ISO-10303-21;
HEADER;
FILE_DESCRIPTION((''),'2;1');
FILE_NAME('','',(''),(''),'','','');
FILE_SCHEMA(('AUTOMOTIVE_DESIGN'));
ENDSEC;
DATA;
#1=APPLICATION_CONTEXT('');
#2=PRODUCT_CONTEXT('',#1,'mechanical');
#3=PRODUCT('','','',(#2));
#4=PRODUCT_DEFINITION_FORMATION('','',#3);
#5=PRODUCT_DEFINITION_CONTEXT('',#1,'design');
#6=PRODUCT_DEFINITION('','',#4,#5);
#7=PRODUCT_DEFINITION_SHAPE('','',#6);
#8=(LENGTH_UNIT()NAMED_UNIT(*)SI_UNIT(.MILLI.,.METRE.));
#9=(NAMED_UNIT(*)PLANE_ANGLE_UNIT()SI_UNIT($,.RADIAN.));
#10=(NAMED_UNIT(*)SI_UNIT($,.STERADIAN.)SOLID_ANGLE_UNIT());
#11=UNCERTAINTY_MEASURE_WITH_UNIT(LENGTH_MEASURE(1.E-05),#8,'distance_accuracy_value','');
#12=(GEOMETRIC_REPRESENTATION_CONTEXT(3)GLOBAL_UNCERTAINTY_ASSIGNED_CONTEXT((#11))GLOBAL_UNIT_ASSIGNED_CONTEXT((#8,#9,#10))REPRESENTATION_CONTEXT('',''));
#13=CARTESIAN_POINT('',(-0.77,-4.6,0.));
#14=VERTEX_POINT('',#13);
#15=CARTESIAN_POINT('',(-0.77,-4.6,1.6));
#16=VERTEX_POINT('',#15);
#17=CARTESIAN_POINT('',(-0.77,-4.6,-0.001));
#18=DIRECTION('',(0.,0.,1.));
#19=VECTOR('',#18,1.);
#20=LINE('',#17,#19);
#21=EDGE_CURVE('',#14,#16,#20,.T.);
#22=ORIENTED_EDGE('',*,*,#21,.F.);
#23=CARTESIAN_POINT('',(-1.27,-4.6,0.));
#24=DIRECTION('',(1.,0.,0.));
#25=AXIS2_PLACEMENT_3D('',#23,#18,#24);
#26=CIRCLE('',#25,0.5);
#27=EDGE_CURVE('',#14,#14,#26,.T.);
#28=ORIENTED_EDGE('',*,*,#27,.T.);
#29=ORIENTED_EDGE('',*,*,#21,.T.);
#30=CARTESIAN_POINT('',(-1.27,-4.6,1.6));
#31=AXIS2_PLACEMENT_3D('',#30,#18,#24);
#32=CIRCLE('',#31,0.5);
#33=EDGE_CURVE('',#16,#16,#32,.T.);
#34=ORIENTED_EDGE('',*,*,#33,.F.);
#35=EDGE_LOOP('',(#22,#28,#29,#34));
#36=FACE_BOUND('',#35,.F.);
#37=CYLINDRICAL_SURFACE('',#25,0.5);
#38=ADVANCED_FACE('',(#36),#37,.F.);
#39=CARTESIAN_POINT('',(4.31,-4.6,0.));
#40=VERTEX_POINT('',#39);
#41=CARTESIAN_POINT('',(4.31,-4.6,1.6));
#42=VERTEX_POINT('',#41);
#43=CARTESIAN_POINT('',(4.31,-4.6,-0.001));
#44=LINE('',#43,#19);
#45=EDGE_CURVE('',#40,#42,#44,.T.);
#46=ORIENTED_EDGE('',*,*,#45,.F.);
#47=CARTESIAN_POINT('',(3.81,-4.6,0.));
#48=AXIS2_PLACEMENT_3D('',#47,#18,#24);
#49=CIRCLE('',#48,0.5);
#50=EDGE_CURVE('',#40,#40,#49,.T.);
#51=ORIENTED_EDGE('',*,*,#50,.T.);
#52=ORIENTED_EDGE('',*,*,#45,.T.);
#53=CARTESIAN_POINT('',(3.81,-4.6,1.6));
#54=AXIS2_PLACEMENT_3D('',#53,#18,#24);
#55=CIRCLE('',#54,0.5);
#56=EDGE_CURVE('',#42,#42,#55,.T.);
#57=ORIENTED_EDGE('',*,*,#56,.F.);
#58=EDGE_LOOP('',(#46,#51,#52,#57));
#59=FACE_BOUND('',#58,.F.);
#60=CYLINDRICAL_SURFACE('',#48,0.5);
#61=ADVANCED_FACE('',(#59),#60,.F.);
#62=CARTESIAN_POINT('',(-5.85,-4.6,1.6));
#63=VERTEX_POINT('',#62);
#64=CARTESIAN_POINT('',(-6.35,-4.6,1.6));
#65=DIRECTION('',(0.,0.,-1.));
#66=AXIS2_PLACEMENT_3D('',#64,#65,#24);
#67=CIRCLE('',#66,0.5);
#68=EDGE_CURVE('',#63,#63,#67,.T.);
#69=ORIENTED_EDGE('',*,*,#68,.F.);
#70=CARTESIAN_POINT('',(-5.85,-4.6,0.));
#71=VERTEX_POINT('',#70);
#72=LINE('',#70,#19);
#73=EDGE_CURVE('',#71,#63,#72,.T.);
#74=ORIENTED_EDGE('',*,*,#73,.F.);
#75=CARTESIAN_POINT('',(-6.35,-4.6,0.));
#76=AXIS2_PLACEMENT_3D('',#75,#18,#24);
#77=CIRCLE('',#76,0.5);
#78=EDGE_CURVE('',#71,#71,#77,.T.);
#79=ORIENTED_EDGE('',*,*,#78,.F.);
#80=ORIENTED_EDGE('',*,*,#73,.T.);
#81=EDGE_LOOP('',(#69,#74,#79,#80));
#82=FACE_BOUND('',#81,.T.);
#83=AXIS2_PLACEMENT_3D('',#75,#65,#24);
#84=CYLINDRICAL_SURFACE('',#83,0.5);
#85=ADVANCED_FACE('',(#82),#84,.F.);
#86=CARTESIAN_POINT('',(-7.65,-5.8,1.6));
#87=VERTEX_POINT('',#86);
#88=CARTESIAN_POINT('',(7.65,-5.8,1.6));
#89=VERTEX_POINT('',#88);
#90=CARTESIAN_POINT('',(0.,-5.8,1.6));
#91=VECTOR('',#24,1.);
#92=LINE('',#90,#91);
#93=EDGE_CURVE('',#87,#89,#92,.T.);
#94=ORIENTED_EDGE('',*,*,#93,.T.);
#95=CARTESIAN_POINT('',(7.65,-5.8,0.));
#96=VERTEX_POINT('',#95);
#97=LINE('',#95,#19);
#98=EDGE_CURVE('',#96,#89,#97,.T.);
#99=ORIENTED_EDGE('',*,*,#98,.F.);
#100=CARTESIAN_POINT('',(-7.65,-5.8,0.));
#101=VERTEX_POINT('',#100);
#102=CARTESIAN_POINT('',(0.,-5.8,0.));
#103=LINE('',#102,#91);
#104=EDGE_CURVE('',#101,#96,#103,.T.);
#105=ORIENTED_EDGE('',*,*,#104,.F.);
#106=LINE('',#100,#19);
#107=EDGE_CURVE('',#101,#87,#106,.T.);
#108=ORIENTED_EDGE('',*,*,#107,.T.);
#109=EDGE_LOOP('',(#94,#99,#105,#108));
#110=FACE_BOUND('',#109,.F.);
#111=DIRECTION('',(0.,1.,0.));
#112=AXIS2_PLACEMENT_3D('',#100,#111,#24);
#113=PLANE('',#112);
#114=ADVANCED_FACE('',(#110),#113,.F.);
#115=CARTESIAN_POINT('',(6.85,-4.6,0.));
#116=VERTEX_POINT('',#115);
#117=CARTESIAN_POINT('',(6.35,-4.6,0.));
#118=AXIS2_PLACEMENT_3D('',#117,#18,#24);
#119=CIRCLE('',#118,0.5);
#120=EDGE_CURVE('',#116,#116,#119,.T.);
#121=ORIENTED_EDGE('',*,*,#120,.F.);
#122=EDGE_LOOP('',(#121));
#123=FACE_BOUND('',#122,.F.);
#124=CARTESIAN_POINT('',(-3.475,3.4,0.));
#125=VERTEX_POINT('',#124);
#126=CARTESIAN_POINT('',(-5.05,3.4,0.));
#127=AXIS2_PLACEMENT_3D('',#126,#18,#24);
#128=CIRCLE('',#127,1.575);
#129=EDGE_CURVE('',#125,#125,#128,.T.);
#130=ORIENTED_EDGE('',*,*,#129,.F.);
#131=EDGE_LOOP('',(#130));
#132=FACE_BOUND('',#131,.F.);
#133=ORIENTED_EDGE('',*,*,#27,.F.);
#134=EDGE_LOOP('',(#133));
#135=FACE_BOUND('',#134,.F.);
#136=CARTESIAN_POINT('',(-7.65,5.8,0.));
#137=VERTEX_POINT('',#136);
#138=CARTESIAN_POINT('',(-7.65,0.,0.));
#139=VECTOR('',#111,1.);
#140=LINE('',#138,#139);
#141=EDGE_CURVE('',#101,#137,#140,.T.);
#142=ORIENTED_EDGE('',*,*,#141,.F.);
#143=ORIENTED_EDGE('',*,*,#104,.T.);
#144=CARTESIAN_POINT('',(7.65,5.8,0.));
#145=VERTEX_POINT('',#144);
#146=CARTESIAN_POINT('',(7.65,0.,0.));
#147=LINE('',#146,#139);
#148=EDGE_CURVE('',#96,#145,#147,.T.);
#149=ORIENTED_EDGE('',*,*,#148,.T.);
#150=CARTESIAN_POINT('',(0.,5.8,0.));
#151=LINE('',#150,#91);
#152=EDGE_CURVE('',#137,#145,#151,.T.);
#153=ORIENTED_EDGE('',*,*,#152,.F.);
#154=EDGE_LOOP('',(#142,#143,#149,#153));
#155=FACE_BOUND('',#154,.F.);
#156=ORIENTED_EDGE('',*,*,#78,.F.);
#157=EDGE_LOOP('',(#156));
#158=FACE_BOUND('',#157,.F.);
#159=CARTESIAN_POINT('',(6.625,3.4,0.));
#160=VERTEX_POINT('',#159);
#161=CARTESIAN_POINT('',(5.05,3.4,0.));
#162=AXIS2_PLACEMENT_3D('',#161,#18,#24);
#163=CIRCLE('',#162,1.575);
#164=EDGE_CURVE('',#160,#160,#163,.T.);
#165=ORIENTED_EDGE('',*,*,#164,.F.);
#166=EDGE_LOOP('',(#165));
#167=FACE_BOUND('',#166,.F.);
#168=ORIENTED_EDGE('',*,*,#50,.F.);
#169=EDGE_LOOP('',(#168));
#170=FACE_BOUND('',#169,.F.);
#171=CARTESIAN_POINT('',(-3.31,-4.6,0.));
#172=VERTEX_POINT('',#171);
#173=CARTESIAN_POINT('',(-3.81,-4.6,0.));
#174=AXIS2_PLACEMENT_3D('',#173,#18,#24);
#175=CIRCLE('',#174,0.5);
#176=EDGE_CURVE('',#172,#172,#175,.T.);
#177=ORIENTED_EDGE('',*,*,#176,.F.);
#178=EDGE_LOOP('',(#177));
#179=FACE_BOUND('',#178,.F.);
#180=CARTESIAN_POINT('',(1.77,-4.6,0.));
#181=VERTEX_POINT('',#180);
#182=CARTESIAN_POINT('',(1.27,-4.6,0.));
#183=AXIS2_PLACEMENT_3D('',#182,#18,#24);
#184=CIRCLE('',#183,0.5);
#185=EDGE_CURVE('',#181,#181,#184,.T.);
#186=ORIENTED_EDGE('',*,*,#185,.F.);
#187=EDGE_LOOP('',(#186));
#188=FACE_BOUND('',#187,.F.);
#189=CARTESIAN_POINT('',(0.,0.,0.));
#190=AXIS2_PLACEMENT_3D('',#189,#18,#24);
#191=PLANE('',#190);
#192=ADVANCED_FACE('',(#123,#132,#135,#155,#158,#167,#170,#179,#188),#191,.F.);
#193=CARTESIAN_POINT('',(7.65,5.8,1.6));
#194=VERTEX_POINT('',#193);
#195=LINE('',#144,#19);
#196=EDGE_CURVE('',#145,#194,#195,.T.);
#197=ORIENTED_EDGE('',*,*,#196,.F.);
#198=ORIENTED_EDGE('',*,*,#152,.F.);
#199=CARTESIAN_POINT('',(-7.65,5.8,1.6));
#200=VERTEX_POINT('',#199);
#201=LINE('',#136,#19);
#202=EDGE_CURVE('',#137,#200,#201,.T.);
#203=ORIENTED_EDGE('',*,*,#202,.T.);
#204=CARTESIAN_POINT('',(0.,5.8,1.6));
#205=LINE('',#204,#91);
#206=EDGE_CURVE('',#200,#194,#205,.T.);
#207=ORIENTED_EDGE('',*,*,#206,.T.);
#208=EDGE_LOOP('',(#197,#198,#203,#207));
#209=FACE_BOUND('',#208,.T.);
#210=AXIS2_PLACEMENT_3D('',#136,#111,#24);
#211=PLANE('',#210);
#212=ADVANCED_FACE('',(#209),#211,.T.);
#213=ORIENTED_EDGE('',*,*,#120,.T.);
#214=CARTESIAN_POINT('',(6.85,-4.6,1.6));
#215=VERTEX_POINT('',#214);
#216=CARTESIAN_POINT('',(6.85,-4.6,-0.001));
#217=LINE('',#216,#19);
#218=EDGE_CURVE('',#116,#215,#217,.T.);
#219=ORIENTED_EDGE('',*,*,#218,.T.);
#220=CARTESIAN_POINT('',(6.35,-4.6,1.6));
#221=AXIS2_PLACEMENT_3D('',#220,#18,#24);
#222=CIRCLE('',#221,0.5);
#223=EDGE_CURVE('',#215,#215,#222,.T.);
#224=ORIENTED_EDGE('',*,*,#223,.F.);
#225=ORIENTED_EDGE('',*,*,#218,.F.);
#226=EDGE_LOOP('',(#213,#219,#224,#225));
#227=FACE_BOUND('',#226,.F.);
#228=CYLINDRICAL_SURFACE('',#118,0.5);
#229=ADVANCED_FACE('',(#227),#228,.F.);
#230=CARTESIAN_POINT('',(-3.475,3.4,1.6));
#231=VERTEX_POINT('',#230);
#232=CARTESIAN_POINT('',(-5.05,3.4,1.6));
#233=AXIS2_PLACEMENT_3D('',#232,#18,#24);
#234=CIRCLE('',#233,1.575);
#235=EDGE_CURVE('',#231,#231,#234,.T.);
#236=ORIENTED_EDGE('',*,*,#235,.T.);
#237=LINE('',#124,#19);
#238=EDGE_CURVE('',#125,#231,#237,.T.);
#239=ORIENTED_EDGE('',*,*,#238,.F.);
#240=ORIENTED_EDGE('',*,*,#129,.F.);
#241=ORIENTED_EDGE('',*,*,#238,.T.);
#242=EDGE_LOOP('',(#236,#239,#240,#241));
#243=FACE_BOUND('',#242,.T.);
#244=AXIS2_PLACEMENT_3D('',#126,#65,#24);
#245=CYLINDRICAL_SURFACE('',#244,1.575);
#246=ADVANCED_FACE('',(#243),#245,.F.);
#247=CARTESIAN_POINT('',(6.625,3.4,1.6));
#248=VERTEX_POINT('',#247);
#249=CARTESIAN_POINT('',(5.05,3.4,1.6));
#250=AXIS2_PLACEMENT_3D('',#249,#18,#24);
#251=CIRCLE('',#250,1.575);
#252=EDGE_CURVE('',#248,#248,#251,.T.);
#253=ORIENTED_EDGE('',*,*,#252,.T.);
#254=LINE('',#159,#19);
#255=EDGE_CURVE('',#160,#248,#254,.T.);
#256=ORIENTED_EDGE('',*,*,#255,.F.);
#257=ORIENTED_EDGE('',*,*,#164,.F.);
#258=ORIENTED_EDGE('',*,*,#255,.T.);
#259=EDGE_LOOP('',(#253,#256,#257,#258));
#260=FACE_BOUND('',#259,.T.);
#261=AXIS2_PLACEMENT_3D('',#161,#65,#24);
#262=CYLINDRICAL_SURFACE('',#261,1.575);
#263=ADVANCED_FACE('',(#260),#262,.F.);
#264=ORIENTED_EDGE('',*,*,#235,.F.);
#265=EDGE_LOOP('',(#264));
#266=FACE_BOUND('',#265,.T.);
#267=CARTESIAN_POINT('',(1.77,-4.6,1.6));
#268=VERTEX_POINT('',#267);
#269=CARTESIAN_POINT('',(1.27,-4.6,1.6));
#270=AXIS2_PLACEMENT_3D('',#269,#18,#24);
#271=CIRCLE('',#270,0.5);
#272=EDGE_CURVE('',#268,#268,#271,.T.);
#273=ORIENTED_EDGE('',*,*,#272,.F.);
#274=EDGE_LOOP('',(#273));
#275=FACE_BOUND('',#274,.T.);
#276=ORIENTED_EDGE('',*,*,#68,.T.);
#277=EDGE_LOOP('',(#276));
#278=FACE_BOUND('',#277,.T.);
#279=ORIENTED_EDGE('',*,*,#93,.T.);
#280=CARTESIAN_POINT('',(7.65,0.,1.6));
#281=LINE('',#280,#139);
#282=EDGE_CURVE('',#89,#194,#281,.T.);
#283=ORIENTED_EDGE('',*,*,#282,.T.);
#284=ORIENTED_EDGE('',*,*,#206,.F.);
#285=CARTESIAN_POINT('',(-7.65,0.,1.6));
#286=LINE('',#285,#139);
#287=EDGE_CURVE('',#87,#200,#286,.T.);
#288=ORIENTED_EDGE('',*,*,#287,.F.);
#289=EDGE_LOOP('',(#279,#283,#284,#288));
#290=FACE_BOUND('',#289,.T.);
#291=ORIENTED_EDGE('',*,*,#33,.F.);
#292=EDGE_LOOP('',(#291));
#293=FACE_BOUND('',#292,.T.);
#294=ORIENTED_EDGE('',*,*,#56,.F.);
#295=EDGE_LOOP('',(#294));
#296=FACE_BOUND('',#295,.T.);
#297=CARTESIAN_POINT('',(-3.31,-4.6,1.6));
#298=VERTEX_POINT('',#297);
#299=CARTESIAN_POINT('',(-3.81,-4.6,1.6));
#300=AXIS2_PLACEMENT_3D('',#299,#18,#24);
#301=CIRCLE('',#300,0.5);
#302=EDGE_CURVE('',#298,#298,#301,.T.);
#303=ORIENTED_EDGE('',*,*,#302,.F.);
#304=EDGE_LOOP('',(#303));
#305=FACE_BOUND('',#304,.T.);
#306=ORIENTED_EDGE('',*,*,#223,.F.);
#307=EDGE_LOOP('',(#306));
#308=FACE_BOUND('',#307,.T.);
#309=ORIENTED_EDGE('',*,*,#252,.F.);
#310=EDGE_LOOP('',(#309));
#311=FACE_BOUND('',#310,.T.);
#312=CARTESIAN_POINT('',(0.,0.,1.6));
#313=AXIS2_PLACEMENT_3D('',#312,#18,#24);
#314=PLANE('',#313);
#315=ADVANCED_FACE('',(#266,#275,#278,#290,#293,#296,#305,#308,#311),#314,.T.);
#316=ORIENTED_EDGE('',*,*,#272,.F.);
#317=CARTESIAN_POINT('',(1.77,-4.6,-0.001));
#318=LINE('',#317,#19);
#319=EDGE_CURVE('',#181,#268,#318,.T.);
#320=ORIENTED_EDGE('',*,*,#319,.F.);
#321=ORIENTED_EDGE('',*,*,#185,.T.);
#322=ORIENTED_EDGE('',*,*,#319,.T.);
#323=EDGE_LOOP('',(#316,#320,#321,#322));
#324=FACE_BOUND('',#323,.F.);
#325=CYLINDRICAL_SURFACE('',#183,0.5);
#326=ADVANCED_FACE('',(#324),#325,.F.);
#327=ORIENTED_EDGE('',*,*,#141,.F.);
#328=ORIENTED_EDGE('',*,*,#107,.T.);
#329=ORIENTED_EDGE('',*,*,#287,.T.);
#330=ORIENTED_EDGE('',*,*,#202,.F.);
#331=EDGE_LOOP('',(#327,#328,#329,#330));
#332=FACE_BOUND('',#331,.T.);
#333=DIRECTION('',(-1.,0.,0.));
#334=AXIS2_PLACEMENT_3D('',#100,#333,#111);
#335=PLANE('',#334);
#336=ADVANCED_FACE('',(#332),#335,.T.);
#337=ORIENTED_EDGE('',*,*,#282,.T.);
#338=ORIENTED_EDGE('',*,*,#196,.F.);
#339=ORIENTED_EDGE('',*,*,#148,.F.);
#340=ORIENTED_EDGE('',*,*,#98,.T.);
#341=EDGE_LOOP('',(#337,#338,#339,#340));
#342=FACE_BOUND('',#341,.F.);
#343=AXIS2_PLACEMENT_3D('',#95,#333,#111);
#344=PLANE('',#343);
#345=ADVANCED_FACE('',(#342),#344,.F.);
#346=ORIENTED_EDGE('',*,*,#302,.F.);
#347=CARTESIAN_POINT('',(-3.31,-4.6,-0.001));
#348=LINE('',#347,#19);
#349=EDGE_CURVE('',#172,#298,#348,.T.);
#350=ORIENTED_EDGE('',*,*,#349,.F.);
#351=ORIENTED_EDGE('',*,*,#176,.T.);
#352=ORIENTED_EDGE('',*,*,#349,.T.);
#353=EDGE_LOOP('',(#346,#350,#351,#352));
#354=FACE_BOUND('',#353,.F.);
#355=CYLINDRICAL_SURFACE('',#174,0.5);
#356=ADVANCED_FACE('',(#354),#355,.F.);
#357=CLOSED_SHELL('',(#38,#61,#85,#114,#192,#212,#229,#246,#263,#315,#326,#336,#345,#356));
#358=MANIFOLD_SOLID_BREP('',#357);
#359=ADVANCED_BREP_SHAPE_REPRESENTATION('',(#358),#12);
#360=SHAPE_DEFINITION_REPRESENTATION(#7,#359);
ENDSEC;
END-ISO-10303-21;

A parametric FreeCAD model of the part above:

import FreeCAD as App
import Part
import Sketcher

V = App.Vector
Q = App.Units.Quantity

doc = App.newDocument("Part")
params = doc.addObject("Spreadsheet::Sheet", "Params")
for row, (alias, value) in enumerate([
    ("sketch1_diameter", "3.15 mm"),
    ("sketch1_width", "15.3 mm"),
    ("sketch1_height", "11.6 mm"),
    ("pad1_length", "1.6 mm"),
    ("sketch2_diameter", "1 mm"),
    ("linearpattern_pitch", "2.54 mm"),
], start=1):
    params.set(f"A{row}", alias)
    params.set(f"B{row}", "=" + value)
    params.setAlias(f"B{row}", alias)

body = doc.addObject("PartDesign::Body", "Body")

# Sketch on XY plane
sketch1 = body.newObject("Sketcher::SketchObject", "Sketch")
sketch1.AttachmentSupport = (doc.getObject("XY_Plane"), [""])
sketch1.MapMode = "FlatFace"
sketch1.addGeometry([
    Part.LineSegment(V(-7.7, 5.8, 0), V(-7.7, -5.8, 0)),  # 0
    Part.LineSegment(V(-7.7, -5.8, 0), V(7.7, -5.8, 0)),  # 1
    Part.LineSegment(V(7.7, -5.8, 0), V(7.7, 5.8, 0)),  # 2
    Part.LineSegment(V(7.7, 5.8, 0), V(-7.7, 5.8, 0)),  # 3
    Part.Circle(V(-5, 3.4, 0), V(0, 0, 1), 1.6),  # 4
    Part.Circle(V(5, 3.4, 0), V(0, 0, 1), 1.6),  # 5
], False)
sketch1.addConstraint([
    Sketcher.Constraint("Coincident", 0, 2, 1, 1),
    Sketcher.Constraint("Coincident", 1, 2, 2, 1),
    Sketcher.Constraint("Coincident", 2, 2, 3, 1),
    Sketcher.Constraint("Coincident", 3, 2, 0, 1),
    Sketcher.Constraint("Vertical", 0),
    Sketcher.Constraint("Horizontal", 1),
    Sketcher.Constraint("Vertical", 2),
    Sketcher.Constraint("Horizontal", 3),
    Sketcher.Constraint("Equal", 4, 5),
    Sketcher.Constraint("Symmetric", 0, 2, 2, 2, -1, 1),
    Sketcher.Constraint("Symmetric", 4, 3, 5, 3, -2),
    Sketcher.Constraint("Diameter", 4, Q("3.15 mm")),
    Sketcher.Constraint("DistanceX", 1, 1, 1, 2, Q("15.3 mm")),
    Sketcher.Constraint("DistanceY", 0, 2, 0, 1, Q("11.6 mm")),
    Sketcher.Constraint("DistanceY", -1, 1, 4, 3, Q("3.4 mm")),
    Sketcher.Constraint("DistanceX", 4, 3, 5, 3, Q("10.1 mm")),
])
sketch1.setExpression("Constraints[11]", "Params.sketch1_diameter")
sketch1.setExpression("Constraints[12]", "Params.sketch1_width")
sketch1.setExpression("Constraints[13]", "Params.sketch1_height")
pad1 = body.newObject("PartDesign::Pad", "Pad")
pad1.Profile = sketch1
pad1.setExpression("Length", "Params.pad1_length")

# Sketch on XY plane
sketch2 = body.newObject("Sketcher::SketchObject", "Sketch001")
sketch2.AttachmentSupport = (doc.getObject("XY_Plane"), [""])
sketch2.MapMode = "FlatFace"
sketch2.addGeometry(Part.Circle(V(-6.3, -4.6, 0), V(0, 0, 1), 0.5), False)
sketch2.addConstraint([
    Sketcher.Constraint("Diameter", 0, Q("1 mm")),
    Sketcher.Constraint("DistanceY", 0, 3, -1, 1, Q("4.6 mm")),
    Sketcher.Constraint("DistanceX", 0, 3, -1, 1, Q("6.35 mm")),
])
sketch2.setExpression("Constraints[0]", "Params.sketch2_diameter")
pocket1 = body.newObject("PartDesign::Pocket", "Pocket")
pocket1.Profile = sketch2
pocket1.Type = "ThroughAll"
pocket1.Midplane = True
doc.recompute()

linearpattern = body.newObject("PartDesign::LinearPattern", "LinearPattern")
linearpattern.Originals = [pocket1]
linearpattern.Direction = (doc.getObject("X_Axis"), [""])
linearpattern.Mode = "offset"
linearpattern.setExpression("Offset", "Params.linearpattern_pitch")
linearpattern.Occurrences = 6
body.Tip = linearpattern

doc.recompute()
